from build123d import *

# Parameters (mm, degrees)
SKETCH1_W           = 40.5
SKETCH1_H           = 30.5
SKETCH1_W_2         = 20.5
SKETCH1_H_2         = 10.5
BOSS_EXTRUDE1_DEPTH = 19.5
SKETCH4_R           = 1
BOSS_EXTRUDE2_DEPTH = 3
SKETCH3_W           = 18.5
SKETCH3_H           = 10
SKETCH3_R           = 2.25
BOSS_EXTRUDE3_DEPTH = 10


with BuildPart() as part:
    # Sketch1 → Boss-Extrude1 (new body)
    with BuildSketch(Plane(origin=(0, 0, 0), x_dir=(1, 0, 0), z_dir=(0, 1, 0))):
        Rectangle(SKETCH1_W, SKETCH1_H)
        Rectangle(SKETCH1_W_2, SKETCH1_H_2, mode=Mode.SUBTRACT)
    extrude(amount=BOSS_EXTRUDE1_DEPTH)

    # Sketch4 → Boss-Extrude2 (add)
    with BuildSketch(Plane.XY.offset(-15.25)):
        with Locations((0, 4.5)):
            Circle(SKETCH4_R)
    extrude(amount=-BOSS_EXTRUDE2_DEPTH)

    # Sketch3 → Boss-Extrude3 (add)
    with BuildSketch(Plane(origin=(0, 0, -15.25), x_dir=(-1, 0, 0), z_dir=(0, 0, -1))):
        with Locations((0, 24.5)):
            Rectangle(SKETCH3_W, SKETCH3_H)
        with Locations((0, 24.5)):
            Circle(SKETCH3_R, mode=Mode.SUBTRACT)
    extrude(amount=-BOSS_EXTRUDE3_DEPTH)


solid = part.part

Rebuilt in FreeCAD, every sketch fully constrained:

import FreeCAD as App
import Part
import Sketcher

V = App.Vector


def add_polygon(sketch, points):
    """Adds a closed chain of lines whose ends are joined by coincident constraints."""
    first, n = sketch.GeometryCount, len(points)
    for a, b in zip(points, points[1:] + points[:1]):
        sketch.addGeometry(Part.LineSegment(App.Vector(*a, 0), App.Vector(*b, 0)), False)
    for i in range(n):
        sketch.addConstraint(Sketcher.Constraint("Coincident", first + i, 2, first + (i + 1) % n, 1))

doc = App.newDocument("Part")
body = doc.addObject("PartDesign::Body", "Body")

# Sketch on XZ plane
sketch1 = body.newObject("Sketcher::SketchObject", "Sketch")
sketch1.AttachmentSupport = (doc.getObject("XZ_Plane"), [""])
sketch1.MapMode = "FlatFace"
add_polygon(sketch1, [(-20, -15), (-20, 15), (20, 15), (20, -15)])  # lines 0-3
add_polygon(sketch1, [(10, 5), (-10, 5), (-10, -5), (10, -5)])  # lines 4-7
sketch1.addConstraint([
    Sketcher.Constraint("Vertical", 0),
    Sketcher.Constraint("Horizontal", 1),
    Sketcher.Constraint("Vertical", 2),
    Sketcher.Constraint("Horizontal", 3),
    Sketcher.Constraint("Horizontal", 4),
    Sketcher.Constraint("Vertical", 5),
    Sketcher.Constraint("Horizontal", 6),
    Sketcher.Constraint("Vertical", 7),
    Sketcher.Constraint("Symmetric", 0, 2, 2, 2, -1, 1),
    Sketcher.Constraint("Symmetric", 4, 2, 6, 2, -1, 1),
    Sketcher.Constraint("DistanceX", 1, 1, 1, 2, 40.5),
    Sketcher.Constraint("DistanceX", 4, 2, 4, 1, 20.5),
    Sketcher.Constraint("DistanceY", 0, 1, 0, 2, 30.5),
    Sketcher.Constraint("DistanceY", 5, 2, 5, 1, 10.5),
])
pad1 = body.newObject("PartDesign::Pad", "Pad")
pad1.Profile = sketch1
pad1.Length = 19.5
pad1.Reversed = True

# Sketch on XY plane
sketch2 = body.newObject("Sketcher::SketchObject", "Sketch001")
sketch2.AttachmentSupport = (doc.getObject("XY_Plane"), [""])
sketch2.MapMode = "FlatFace"
sketch2.AttachmentOffset = App.Placement(V(0, 0, -15.25), App.Rotation())
sketch2.addGeometry(Part.Circle(V(0, 4.5, 0), V(0, 0, 1), 1), False)
sketch2.addConstraint([
    Sketcher.Constraint("PointOnObject", 0, 3, -2),
    Sketcher.Constraint("Diameter", 0, 2.0),
    Sketcher.Constraint("DistanceY", -1, 1, 0, 3, 4.5),
])
pad2 = body.newObject("PartDesign::Pad", "Pad001")
pad2.Profile = sketch2
pad2.Length = 3
pad2.Reversed = True

# Sketch on XY plane
sketch3 = body.newObject("Sketcher::SketchObject", "Sketch002")
sketch3.AttachmentSupport = (doc.getObject("XY_Plane"), [""])
sketch3.MapMode = "FlatFace"
sketch3.AttachmentOffset = App.Placement(V(0, 0, -15.25), App.Rotation())
add_polygon(sketch3, [(9.2, 29.5), (9.2, 19.5), (-9.2, 19.5), (-9.2, 29.5)])  # lines 0-3
sketch3.addGeometry(Part.Circle(V(0, 24.5, 0), V(0, 0, 1), 2.2), False)  # 4
sketch3.addConstraint([
    Sketcher.Constraint("Vertical", 0),
    Sketcher.Constraint("Horizontal", 1),
    Sketcher.Constraint("Vertical", 2),
    Sketcher.Constraint("Horizontal", 3),
    Sketcher.Constraint("PointOnObject", 4, 3, -2),
    Sketcher.Constraint("Diameter", 4, 4.5),
    Sketcher.Constraint("DistanceY", 0, 2, 0, 1, 10.0),
    Sketcher.Constraint("DistanceX", 1, 2, 1, 1, 18.5),
    Sketcher.Constraint("DistanceY", 0, 2, 4, 3, 5.0),
    Sketcher.Constraint("DistanceY", -1, 1, 4, 3, 24.5),
    Sketcher.Constraint("DistanceX", -1, 1, 0, 2, 9.25),
])
pad3 = body.newObject("PartDesign::Pad", "Pad002")
pad3.Profile = sketch3
pad3.Length = 10

doc.recompute()
